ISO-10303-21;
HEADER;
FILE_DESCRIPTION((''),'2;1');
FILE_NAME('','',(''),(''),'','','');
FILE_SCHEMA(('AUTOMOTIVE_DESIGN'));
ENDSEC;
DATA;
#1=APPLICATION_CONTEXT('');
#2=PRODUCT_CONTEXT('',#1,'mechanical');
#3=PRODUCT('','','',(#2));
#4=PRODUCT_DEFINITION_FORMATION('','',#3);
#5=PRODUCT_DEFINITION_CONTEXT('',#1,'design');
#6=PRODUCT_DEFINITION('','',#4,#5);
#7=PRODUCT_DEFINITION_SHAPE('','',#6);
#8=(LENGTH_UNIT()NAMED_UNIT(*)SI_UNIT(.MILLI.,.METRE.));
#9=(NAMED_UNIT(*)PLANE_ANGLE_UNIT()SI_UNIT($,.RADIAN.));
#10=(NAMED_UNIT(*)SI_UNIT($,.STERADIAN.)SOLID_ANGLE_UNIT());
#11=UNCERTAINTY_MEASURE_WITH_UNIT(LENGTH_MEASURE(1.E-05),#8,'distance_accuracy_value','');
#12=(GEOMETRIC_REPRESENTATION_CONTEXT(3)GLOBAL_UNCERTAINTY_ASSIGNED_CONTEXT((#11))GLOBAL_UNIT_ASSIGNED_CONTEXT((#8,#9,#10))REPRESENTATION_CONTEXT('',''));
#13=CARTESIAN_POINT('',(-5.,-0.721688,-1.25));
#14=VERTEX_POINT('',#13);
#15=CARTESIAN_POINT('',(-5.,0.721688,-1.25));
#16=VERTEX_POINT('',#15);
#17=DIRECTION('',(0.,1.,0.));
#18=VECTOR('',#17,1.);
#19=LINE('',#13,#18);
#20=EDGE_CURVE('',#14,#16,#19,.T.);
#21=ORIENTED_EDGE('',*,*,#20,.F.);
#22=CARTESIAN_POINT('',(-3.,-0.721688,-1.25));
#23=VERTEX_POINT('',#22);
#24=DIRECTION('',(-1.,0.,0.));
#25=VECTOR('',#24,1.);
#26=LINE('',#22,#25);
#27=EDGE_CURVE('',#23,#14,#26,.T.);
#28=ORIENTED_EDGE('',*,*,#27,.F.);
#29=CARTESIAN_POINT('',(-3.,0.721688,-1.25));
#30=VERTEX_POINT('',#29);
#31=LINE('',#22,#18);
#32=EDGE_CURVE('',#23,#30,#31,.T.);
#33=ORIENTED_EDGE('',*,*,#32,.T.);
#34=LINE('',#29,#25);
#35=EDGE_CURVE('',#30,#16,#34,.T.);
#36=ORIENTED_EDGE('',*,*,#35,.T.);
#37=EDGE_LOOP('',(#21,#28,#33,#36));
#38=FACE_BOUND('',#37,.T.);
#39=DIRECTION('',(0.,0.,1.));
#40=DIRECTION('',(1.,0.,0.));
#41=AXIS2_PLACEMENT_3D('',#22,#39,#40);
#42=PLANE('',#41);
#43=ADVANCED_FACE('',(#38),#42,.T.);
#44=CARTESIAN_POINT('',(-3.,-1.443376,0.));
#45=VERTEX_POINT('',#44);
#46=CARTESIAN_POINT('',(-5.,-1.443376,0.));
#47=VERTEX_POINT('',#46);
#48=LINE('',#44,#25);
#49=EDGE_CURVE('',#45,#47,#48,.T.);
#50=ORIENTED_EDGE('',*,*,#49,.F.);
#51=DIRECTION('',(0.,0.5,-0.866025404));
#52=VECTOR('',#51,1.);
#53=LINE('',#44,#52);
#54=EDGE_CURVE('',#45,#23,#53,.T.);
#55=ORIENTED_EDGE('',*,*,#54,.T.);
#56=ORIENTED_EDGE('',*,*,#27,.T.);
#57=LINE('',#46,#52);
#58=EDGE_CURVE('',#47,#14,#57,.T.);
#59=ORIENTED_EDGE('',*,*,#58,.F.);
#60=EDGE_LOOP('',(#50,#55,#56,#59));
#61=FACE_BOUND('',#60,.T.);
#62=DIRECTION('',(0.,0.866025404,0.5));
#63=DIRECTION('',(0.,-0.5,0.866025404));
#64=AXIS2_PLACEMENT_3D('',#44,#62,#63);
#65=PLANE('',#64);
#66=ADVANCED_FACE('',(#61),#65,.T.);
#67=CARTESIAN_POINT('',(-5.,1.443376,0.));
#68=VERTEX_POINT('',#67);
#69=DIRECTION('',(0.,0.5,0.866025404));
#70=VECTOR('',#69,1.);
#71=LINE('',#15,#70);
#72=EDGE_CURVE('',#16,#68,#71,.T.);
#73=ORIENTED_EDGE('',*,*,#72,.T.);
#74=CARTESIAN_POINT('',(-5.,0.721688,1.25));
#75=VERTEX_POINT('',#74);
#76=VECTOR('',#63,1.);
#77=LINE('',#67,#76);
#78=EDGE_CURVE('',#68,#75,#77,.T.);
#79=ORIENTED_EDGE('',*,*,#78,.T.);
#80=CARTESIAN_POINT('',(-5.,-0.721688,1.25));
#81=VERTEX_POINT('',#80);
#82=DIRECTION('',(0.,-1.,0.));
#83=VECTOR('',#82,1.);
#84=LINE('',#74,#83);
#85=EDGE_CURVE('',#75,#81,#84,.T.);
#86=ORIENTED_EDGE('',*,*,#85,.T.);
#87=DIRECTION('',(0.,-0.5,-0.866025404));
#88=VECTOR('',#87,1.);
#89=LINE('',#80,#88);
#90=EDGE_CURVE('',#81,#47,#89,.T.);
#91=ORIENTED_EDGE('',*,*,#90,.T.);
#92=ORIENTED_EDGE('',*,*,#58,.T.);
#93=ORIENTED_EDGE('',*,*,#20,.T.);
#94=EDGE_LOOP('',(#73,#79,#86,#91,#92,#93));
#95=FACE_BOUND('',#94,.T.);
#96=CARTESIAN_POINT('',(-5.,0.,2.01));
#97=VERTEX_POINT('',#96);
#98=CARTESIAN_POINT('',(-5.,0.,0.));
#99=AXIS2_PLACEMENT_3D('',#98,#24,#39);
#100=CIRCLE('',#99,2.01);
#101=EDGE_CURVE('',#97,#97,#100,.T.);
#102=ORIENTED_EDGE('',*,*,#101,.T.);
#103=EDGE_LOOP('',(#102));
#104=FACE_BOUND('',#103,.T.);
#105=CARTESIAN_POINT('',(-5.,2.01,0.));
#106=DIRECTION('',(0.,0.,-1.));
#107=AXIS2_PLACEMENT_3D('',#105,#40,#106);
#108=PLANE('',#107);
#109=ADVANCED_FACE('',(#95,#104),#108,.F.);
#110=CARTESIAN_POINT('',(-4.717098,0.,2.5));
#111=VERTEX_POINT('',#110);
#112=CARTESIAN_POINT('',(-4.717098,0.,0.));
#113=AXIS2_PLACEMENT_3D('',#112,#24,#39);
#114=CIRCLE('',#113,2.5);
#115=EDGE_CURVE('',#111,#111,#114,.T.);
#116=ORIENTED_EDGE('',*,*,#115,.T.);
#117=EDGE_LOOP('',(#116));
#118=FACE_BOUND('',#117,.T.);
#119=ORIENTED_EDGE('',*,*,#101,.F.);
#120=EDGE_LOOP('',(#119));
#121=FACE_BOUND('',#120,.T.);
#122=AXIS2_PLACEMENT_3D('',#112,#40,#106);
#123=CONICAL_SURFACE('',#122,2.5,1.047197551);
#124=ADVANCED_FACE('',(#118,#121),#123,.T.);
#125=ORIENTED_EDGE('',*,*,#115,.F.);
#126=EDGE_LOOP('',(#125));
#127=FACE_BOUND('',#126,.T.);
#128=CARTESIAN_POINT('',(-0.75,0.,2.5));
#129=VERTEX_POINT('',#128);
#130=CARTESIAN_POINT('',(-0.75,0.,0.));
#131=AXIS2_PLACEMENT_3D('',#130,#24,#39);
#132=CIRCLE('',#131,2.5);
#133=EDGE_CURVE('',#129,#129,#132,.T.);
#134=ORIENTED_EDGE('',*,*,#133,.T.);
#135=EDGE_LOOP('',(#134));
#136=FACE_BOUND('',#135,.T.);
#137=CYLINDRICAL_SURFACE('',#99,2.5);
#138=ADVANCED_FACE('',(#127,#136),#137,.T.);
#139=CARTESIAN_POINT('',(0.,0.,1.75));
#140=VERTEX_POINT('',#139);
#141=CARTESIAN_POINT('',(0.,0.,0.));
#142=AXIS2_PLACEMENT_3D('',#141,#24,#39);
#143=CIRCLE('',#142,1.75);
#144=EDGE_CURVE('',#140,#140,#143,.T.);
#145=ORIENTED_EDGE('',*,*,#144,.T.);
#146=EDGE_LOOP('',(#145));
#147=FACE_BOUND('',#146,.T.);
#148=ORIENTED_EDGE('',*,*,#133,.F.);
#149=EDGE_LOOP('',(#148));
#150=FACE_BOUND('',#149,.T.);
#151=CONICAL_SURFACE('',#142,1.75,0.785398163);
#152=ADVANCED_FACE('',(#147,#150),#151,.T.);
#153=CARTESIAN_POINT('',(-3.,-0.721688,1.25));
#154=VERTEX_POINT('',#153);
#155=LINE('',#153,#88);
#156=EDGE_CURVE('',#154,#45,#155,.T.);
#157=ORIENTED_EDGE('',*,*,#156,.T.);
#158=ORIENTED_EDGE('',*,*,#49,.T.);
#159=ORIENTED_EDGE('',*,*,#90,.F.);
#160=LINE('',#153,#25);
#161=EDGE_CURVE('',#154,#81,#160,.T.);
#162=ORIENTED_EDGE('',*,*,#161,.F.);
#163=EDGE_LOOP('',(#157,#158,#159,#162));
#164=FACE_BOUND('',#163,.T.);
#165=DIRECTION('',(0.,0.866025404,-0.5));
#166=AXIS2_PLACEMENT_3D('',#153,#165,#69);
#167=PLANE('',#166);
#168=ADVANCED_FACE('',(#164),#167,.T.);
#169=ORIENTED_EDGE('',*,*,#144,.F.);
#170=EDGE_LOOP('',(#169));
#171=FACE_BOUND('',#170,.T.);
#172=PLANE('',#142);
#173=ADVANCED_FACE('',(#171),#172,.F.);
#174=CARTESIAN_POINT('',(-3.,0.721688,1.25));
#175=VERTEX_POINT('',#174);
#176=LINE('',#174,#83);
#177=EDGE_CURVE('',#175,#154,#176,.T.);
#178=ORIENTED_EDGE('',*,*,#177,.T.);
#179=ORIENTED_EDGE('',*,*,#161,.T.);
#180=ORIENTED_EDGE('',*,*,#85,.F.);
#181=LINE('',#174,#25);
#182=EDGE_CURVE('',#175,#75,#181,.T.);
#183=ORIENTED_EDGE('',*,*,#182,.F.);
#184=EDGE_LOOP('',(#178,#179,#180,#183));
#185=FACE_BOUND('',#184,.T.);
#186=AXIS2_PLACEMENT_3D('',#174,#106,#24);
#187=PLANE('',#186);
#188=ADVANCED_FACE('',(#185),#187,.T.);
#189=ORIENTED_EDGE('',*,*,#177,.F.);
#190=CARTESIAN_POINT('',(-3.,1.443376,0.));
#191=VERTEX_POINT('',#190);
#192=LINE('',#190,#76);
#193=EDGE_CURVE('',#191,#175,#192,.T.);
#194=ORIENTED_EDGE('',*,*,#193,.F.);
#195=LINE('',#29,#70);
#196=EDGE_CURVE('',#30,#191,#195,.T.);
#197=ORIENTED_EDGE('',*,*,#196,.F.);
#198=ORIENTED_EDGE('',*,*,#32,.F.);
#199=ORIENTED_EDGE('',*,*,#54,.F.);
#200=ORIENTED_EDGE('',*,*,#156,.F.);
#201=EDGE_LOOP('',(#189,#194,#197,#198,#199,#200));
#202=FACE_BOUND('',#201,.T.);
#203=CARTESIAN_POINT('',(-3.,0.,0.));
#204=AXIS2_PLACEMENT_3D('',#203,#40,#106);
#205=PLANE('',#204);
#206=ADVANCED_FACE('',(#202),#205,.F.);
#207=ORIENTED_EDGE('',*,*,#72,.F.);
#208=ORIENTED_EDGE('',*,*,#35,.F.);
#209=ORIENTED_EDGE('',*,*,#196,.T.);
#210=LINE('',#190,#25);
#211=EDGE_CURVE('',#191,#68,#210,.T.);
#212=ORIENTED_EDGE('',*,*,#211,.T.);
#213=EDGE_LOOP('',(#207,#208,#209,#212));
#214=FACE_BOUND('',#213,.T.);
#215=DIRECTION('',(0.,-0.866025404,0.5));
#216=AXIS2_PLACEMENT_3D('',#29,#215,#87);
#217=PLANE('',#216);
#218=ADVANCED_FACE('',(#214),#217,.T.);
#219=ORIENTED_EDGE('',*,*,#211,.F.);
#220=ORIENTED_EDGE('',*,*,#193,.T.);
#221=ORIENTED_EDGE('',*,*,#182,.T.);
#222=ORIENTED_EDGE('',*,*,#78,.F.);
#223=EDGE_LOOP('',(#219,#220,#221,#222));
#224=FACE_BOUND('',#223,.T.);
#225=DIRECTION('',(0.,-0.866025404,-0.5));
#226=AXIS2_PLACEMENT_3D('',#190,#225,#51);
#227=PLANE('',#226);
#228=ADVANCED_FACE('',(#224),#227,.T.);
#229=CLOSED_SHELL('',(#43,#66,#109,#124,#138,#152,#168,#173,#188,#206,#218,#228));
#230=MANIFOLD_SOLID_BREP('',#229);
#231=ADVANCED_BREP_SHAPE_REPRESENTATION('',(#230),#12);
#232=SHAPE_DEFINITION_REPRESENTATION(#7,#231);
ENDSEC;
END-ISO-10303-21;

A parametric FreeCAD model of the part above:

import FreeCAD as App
import Part
import Sketcher
from FreeCAD import Vector
Q = App.Units.Quantity

doc = App.newDocument("Part")
body = doc.addObject("PartDesign::Body", "Body")

# Sketch on XY plane
sketch1 = body.newObject("Sketcher::SketchObject", "Sketch")
sketch1.AttachmentSupport = (doc.getObject("XY_Plane"), [""])
sketch1.MapMode = "FlatFace"
sketch1.addGeometry([
    Part.LineSegment(Vector(0, 0, 0), Vector(0, 1.75, 0)),  # 0
    Part.LineSegment(Vector(0, 1.75, 0), Vector(-0.75, 2.5, 0)),  # 1
    Part.LineSegment(Vector(-0.75, 2.5, 0), Vector(-4.717098, 2.5, 0)),  # 2
    Part.LineSegment(Vector(-4.717098, 2.5, 0), Vector(-5, 2.01, 0)),  # 3
    Part.LineSegment(Vector(-5, 2.01, 0), Vector(-5, 0, 0)),  # 4
    Part.LineSegment(Vector(-5, 0, 0), Vector(0, 0, 0)),  # 5
], False)
sketch1.addConstraint([
    Sketcher.Constraint("Coincident", 0, 2, 1, 1),
    Sketcher.Constraint("Coincident", 1, 2, 2, 1),
    Sketcher.Constraint("Coincident", 2, 2, 3, 1),
    Sketcher.Constraint("Coincident", 3, 2, 4, 1),
    Sketcher.Constraint("Coincident", 4, 2, 5, 1),
    Sketcher.Constraint("Coincident", 5, 2, 0, 1),
    Sketcher.Constraint("Vertical", 0),
    Sketcher.Constraint("Horizontal", 2),
    Sketcher.Constraint("Vertical", 4),
    Sketcher.Constraint("Horizontal", 5),
    Sketcher.Constraint("Coincident", 5, 2, -1, 1),
    Sketcher.Constraint("DistanceX", 5, 1, 5, 2, Q("5 mm")),
    Sketcher.Constraint("Angle", 1, Q("135 deg")),
    Sketcher.Constraint("Angle", 3, Q("-120 deg")),
    Sketcher.Constraint("DistanceY", 0, 1, 0, 2, Q("1.75 mm")),
    Sketcher.Constraint("DistanceY", 4, 2, 4, 1, Q("2.01 mm")),
    Sketcher.Constraint("DistanceY", -1, 1, 1, 2, Q("2.5 mm")),
])
revolution = body.newObject("PartDesign::Revolution", "Revolution")
revolution.Profile = sketch1
revolution.ReferenceAxis = (sketch1, ["H_Axis"])
revolution.Angle = 360

# Sketch on YZ plane
sketch2 = body.newObject("Sketcher::SketchObject", "Sketch001")
sketch2.AttachmentSupport = (doc.getObject("YZ_Plane"), [""])
sketch2.MapMode = "FlatFace"
sketch2.AttachmentOffset = App.Placement(Vector(0, 0, -5), App.Rotation())
sketch2.addGeometry([
    Part.LineSegment(Vector(-0.721688, -1.25, 0), Vector(0.721688, -1.25, 0)),  # 0
    Part.LineSegment(Vector(0.721688, -1.25, 0), Vector(1.443376, 0, 0)),  # 1
    Part.LineSegment(Vector(1.443376, 0, 0), Vector(0.721688, 1.25, 0)),  # 2
    Part.LineSegment(Vector(0.721688, 1.25, 0), Vector(-0.721688, 1.25, 0)),  # 3
    Part.LineSegment(Vector(-0.721688, 1.25, 0), Vector(-1.443376, 0, 0)),  # 4
    Part.LineSegment(Vector(-1.443376, 0, 0), Vector(-0.721688, -1.25, 0)),  # 5
], False)
sketch2.addConstraint([
    Sketcher.Constraint("Coincident", 0, 2, 1, 1),
    Sketcher.Constraint("Coincident", 1, 2, 2, 1),
    Sketcher.Constraint("Coincident", 2, 2, 3, 1),
    Sketcher.Constraint("Coincident", 3, 2, 4, 1),
    Sketcher.Constraint("Coincident", 4, 2, 5, 1),
    Sketcher.Constraint("Coincident", 5, 2, 0, 1),
    Sketcher.Constraint("Horizontal", 0),
    Sketcher.Constraint("Horizontal", 3),
    Sketcher.Constraint("Symmetric", 0, 2, 3, 2, -1, 1),
    Sketcher.Constraint("Symmetric", 1, 2, 4, 2, -1, 1),
    Sketcher.Constraint("PointOnObject", 1, 2, -1),
    Sketcher.Constraint("Parallel", 2, 5),
    Sketcher.Constraint("Vertical", 0, 2, 2, 2),
    Sketcher.Constraint("Angle", 1, Q("60 deg")),
    Sketcher.Constraint("DistanceY", 0, 2, 2, 2, Q("2.5 mm")),
    Sketcher.Constraint("DistanceX", 0, 1, 0, 2, Q("1.443376 mm")),
])
pocket1 = body.newObject("PartDesign::Pocket", "Pocket")
pocket1.Profile = sketch2
pocket1.Length = 2
pocket1.Reversed = True

doc.recompute()
